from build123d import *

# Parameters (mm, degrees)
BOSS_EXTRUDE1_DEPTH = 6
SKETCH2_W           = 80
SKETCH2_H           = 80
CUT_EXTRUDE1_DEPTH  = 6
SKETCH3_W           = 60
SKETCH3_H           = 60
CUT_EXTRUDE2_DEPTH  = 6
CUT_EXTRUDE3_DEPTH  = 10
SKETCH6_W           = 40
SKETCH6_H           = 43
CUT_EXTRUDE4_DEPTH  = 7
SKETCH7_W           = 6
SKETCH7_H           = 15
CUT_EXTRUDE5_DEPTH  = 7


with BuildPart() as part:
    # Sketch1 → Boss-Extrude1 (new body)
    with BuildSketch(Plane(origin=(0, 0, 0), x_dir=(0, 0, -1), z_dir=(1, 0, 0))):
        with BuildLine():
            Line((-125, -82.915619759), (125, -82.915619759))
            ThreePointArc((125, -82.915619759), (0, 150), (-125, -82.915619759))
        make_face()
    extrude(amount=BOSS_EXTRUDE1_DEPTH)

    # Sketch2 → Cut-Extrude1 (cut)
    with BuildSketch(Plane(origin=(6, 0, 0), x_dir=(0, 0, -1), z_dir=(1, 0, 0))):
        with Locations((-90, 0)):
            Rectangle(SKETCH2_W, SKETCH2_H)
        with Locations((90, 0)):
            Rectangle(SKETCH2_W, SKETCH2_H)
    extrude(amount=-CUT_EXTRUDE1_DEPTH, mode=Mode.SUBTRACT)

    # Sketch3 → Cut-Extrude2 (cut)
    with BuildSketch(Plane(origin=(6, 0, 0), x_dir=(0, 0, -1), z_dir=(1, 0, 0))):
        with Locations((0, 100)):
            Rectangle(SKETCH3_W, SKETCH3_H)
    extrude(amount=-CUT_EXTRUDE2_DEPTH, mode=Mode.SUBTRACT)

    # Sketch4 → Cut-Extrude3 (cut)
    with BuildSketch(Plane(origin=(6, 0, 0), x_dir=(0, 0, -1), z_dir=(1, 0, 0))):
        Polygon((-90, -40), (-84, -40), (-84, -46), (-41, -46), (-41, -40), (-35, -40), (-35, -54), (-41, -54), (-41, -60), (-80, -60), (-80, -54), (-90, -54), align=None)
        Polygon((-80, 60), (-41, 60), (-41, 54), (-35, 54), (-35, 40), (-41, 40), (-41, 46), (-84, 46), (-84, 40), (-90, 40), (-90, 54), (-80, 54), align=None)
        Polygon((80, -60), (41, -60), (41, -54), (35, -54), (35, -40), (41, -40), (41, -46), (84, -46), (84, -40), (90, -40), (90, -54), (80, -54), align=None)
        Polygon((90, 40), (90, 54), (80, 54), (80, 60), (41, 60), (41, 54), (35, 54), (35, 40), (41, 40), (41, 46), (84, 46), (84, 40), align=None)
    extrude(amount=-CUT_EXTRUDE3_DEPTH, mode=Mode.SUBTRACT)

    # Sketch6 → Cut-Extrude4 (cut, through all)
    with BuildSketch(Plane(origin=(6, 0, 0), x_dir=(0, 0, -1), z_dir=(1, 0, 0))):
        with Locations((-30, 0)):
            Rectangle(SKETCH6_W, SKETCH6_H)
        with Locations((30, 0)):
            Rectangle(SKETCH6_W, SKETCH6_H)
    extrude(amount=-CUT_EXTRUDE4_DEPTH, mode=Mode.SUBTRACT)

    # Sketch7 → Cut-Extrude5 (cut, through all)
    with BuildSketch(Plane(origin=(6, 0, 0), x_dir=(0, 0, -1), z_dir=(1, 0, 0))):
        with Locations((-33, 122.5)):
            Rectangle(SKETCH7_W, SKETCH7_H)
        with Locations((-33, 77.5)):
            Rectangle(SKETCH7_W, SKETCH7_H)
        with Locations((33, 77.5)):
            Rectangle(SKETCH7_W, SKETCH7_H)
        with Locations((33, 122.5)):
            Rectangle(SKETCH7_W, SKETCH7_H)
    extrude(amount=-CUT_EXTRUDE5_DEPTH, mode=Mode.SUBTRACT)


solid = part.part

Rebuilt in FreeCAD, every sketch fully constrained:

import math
import FreeCAD as App
import Part
import Sketcher
Q = App.Units.Quantity


def add_polygon(sketch, points):
    """Adds a closed chain of lines whose ends are joined by coincident constraints."""
    first, n = sketch.GeometryCount, len(points)
    for a, b in zip(points, points[1:] + points[:1]):
        sketch.addGeometry(Part.LineSegment(App.Vector(*a, 0), App.Vector(*b, 0)), False)
    for i in range(n):
        sketch.addConstraint(Sketcher.Constraint("Coincident", first + i, 2, first + (i + 1) % n, 1))

doc = App.newDocument("Part")
params = doc.addObject("Spreadsheet::Sheet", "Params")
for row, (alias, value) in enumerate([
    ("sketch1_radius", "150 mm"),
    ("sketch1_height", "250 mm"),
    ("pad1_length", "6 mm"),
    ("sketch2_width", "80 mm"),
    ("pocket1_length", "6 mm"),
    ("sketch3_width", "60 mm"),
    ("pocket2_length", "6 mm"),
    ("sketch4_width", "14 mm"),
    ("sketch4_width2", "6 mm"),
    ("sketch4_height", "10 mm"),
    ("sketch4_height2", "39 mm"),
    ("pocket3_length", "10 mm"),
    ("sketch5_width", "43 mm"),
    ("sketch5_height", "40 mm"),
    ("sketch6_width", "15 mm"),
    ("sketch6_height", "6 mm"),
], start=1):
    params.set(f"A{row}", alias)
    params.set(f"B{row}", "=" + value)
    params.setAlias(f"B{row}", alias)

body = doc.addObject("PartDesign::Body", "Body")

sketch1 = body.newObject("Sketcher::SketchObject", "Sketch")
sketch1.AttachmentSupport = (doc.getObject("YZ_Plane"), [""])
sketch1.MapMode = "FlatFace"
sketch1.addGeometry([
    Part.LineSegment(App.Vector(-82.91562, 125, 0), App.Vector(-82.91562, -125, 0)),
    Part.ArcOfCircle(Part.Circle(App.Vector(0, 0, 0), App.Vector(0, 0, 1), 150), math.radians(-123.55731), math.radians(123.55731)),
], False)
sketch1.addConstraint([
    Sketcher.Constraint("Coincident", 0, 1, 1, 2),
    Sketcher.Constraint("Coincident", 1, 1, 0, 2),
    Sketcher.Constraint("Vertical", 0),
    Sketcher.Constraint("Coincident", 1, 3, -1, 1),
    Sketcher.Constraint("Radius", 1, Q("150 mm")),
    Sketcher.Constraint("DistanceY", 0, 2, 0, 1, Q("250 mm")),
])
sketch1.setExpression("Constraints[4]", "Params.sketch1_radius")
sketch1.setExpression("Constraints[5]", "Params.sketch1_height")
pad1 = body.newObject("PartDesign::Pad", "Pad")
pad1.Profile = sketch1
pad1.setExpression("Length", "Params.pad1_length")

sketch2 = body.newObject("Sketcher::SketchObject", "Sketch001")
sketch2.AttachmentSupport = (doc.getObject("YZ_Plane"), [""])
sketch2.MapMode = "FlatFace"
sketch2.AttachmentOffset = App.Placement(App.Vector(0, 0, 6), App.Rotation())
add_polygon(sketch2, [(40, 130), (-40, 130), (-40, 50), (40, 50)])
add_polygon(sketch2, [(40, -50), (-40, -50), (-40, -130), (40, -130)])
sketch2.addConstraint([
    Sketcher.Constraint("Horizontal", 0),
    Sketcher.Constraint("Vertical", 1),
    Sketcher.Constraint("Horizontal", 2),
    Sketcher.Constraint("Vertical", 3),
    Sketcher.Constraint("Horizontal", 4),
    Sketcher.Constraint("Vertical", 5),
    Sketcher.Constraint("Horizontal", 6),
    Sketcher.Constraint("Vertical", 7),
    Sketcher.Constraint("Symmetric", 2, 2, 4, 2, -1, 1),
    Sketcher.Constraint("Symmetric", 0, 2, 6, 2, -1, 1),
    Sketcher.Constraint("Vertical", 1, 2, 4, 2),
    Sketcher.Constraint("Equal", 6, 1),
    Sketcher.Constraint("DistanceX", 0, 2, 0, 1, Q("80 mm")),
    Sketcher.Constraint("DistanceY", -1, 1, 0, 2, Q("130 mm")),
])
sketch2.setExpression("Constraints[20]", "Params.sketch2_width")
pocket1 = body.newObject("PartDesign::Pocket", "Pocket")
pocket1.Profile = sketch2
pocket1.setExpression("Length", "Params.pocket1_length")

sketch3 = body.newObject("Sketcher::SketchObject", "Sketch002")
sketch3.AttachmentSupport = (doc.getObject("YZ_Plane"), [""])
sketch3.MapMode = "FlatFace"
sketch3.AttachmentOffset = App.Placement(App.Vector(0, 0, 6), App.Rotation())
add_polygon(sketch3, [(130, 30), (70, 30), (70, -30), (130, -30)])
sketch3.addConstraint([
    Sketcher.Constraint("Horizontal", 0),
    Sketcher.Constraint("Vertical", 1),
    Sketcher.Constraint("Horizontal", 2),
    Sketcher.Constraint("Vertical", 3),
    Sketcher.Constraint("Equal", 2, 1),
    Sketcher.Constraint("DistanceX", 0, 2, 0, 1, Q("60 mm")),
    Sketcher.Constraint("DistanceX", -1, 1, 0, 2, Q("70 mm")),
    Sketcher.Constraint("DistanceY", -1, 1, 0, 2, Q("30 mm")),
])
sketch3.setExpression("Constraints[9]", "Params.sketch3_width")
pocket2 = body.newObject("PartDesign::Pocket", "Pocket001")
pocket2.Profile = sketch3
pocket2.setExpression("Length", "Params.pocket2_length")

sketch4 = body.newObject("Sketcher::SketchObject", "Sketch003")
sketch4.AttachmentSupport = (doc.getObject("YZ_Plane"), [""])
sketch4.MapMode = "FlatFace"
sketch4.AttachmentOffset = App.Placement(App.Vector(0, 0, 6), App.Rotation())
add_polygon(sketch4, [(-40, 84), (-40, 90), (-54, 90), (-54, 80), (-60, 80), (-60, 41), (-54, 41), (-54, 35), (-40, 35), (-40, 41), (-46, 41), (-46, 84)])
add_polygon(sketch4, [(60, 41), (60, 80), (54, 80), (54, 90), (40, 90), (40, 84), (46, 84), (46, 41), (40, 41), (40, 35), (54, 35), (54, 41)])
add_polygon(sketch4, [(-60, -41), (-60, -80), (-54, -80), (-54, -90), (-40, -90), (-40, -84), (-46, -84), (-46, -41), (-40, -41), (-40, -35), (-54, -35), (-54, -41)])
add_polygon(sketch4, [(40, -90), (54, -90), (54, -80), (60, -80), (60, -41), (54, -41), (54, -35), (40, -35), (40, -41), (46, -41), (46, -84), (40, -84)])
sketch4.addConstraint([
    Sketcher.Constraint("Vertical", 0),
    Sketcher.Constraint("Horizontal", 1),
    Sketcher.Constraint("Vertical", 2),
    Sketcher.Constraint("Horizontal", 3),
    Sketcher.Constraint("Vertical", 4),
    Sketcher.Constraint("Horizontal", 5),
    Sketcher.Constraint("Vertical", 6),
    Sketcher.Constraint("Horizontal", 7),
    Sketcher.Constraint("Vertical", 8),
    Sketcher.Constraint("Horizontal", 9),
    Sketcher.Constraint("Vertical", 10),
    Sketcher.Constraint("Horizontal", 11),
    Sketcher.Constraint("Vertical", 12),
    Sketcher.Constraint("Horizontal", 13),
    Sketcher.Constraint("Vertical", 14),
    Sketcher.Constraint("Horizontal", 15),
    Sketcher.Constraint("Vertical", 16),
    Sketcher.Constraint("Horizontal", 17),
    Sketcher.Constraint("Vertical", 18),
    Sketcher.Constraint("Horizontal", 19),
    Sketcher.Constraint("Vertical", 20),
    Sketcher.Constraint("Horizontal", 21),
    Sketcher.Constraint("Vertical", 22),
    Sketcher.Constraint("Horizontal", 23),
    Sketcher.Constraint("Vertical", 24),
    Sketcher.Constraint("Horizontal", 25),
    Sketcher.Constraint("Vertical", 26),
    Sketcher.Constraint("Horizontal", 27),
    Sketcher.Constraint("Vertical", 28),
    Sketcher.Constraint("Horizontal", 29),
    Sketcher.Constraint("Vertical", 30),
    Sketcher.Constraint("Horizontal", 31),
    Sketcher.Constraint("Vertical", 32),
    Sketcher.Constraint("Horizontal", 33),
    Sketcher.Constraint("Vertical", 34),
    Sketcher.Constraint("Horizontal", 35),
    Sketcher.Constraint("Horizontal", 36),
    Sketcher.Constraint("Vertical", 37),
    Sketcher.Constraint("Horizontal", 38),
    Sketcher.Constraint("Vertical", 39),
    Sketcher.Constraint("Horizontal", 40),
    Sketcher.Constraint("Vertical", 41),
    Sketcher.Constraint("Horizontal", 42),
    Sketcher.Constraint("Vertical", 43),
    Sketcher.Constraint("Horizontal", 44),
    Sketcher.Constraint("Vertical", 45),
    Sketcher.Constraint("Horizontal", 46),
    Sketcher.Constraint("Vertical", 47),
    Sketcher.Constraint("Symmetric", 12, 2, 24, 2, -1, 1),
    Sketcher.Constraint("Symmetric", 14, 2, 26, 2, -1, 1),
    Sketcher.Constraint("Symmetric", 16, 2, 28, 2, -1, 1),
    Sketcher.Constraint("Symmetric", 18, 2, 30, 2, -1, 1),
    Sketcher.Constraint("Symmetric", 20, 2, 32, 2, -1, 1),
    Sketcher.Constraint("Symmetric", 22, 2, 34, 2, -1, 1),
    Sketcher.Constraint("Symmetric", 1, 2, 36, 2, -1, 1),
    Sketcher.Constraint("Symmetric", 3, 2, 38, 2, -1, 1),
    Sketcher.Constraint("Symmetric", 5, 2, 40, 2, -1, 1),
    Sketcher.Constraint("Symmetric", 7, 2, 42, 2, -1, 1),
    Sketcher.Constraint("Symmetric", 9, 2, 44, 2, -1, 1),
    Sketcher.Constraint("Symmetric", 11, 2, 46, 2, -1, 1),
    Sketcher.Constraint("Symmetric", 3, 2, 12, 2, -2),
    Sketcher.Constraint("Symmetric", 1, 2, 14, 2, -2),
    Sketcher.Constraint("Symmetric", 11, 2, 16, 2, -2),
    Sketcher.Constraint("Symmetric", 9, 2, 18, 2, -2),
    Sketcher.Constraint("Symmetric", 7, 2, 20, 2, -2),
    Sketcher.Constraint("Symmetric", 5, 2, 22, 2, -2),
    Sketcher.Constraint("Horizontal", 5, 2, 8, 2),
    Sketcher.Constraint("Vertical", 2, 2, 5, 2),
    Sketcher.Constraint("Vertical", 0, 2, 7, 2),
    Sketcher.Constraint("Equal", 5, 9),
    Sketcher.Constraint("Equal", 46, 0),
    Sketcher.Constraint("Equal", 0, 6),
    Sketcher.Constraint("DistanceX", 1, 2, 1, 1, Q("14 mm")),
    Sketcher.Constraint("DistanceX", 3, 2, 3, 1, Q("6 mm")),
    Sketcher.Constraint("DistanceY", 2, 2, 2, 1, Q("10 mm")),
    Sketcher.Constraint("DistanceY", 4, 2, 4, 1, Q("39 mm")),
    Sketcher.Constraint("DistanceX", 0, 2, -1, 1, Q("40 mm")),
    Sketcher.Constraint("DistanceY", -1, 1, 0, 2, Q("90 mm")),
])
sketch4.setExpression("Constraints[120]", "Params.sketch4_width")
sketch4.setExpression("Constraints[121]", "Params.sketch4_width2")
sketch4.setExpression("Constraints[122]", "Params.sketch4_height")
sketch4.setExpression("Constraints[123]", "Params.sketch4_height2")
pocket3 = body.newObject("PartDesign::Pocket", "Pocket002")
pocket3.Profile = sketch4
pocket3.setExpression("Length", "Params.pocket3_length")

sketch5 = body.newObject("Sketcher::SketchObject", "Sketch004")
sketch5.AttachmentSupport = (doc.getObject("YZ_Plane"), [""])
sketch5.MapMode = "FlatFace"
sketch5.AttachmentOffset = App.Placement(App.Vector(0, 0, 6), App.Rotation())
add_polygon(sketch5, [(21.5, 50), (-21.5, 50), (-21.5, 10), (21.5, 10)])
add_polygon(sketch5, [(21.5, -10), (-21.5, -10), (-21.5, -50), (21.5, -50)])
sketch5.addConstraint([
    Sketcher.Constraint("Horizontal", 0),
    Sketcher.Constraint("Vertical", 1),
    Sketcher.Constraint("Horizontal", 2),
    Sketcher.Constraint("Vertical", 3),
    Sketcher.Constraint("Horizontal", 4),
    Sketcher.Constraint("Vertical", 5),
    Sketcher.Constraint("Horizontal", 6),
    Sketcher.Constraint("Vertical", 7),
    Sketcher.Constraint("Symmetric", 2, 2, 4, 2, -1, 1),
    Sketcher.Constraint("Symmetric", 0, 2, 6, 2, -1, 1),
    Sketcher.Constraint("Vertical", 1, 2, 4, 2),
    Sketcher.Constraint("DistanceX", 0, 2, 0, 1, Q("43 mm")),
    Sketcher.Constraint("DistanceY", 1, 2, 1, 1, Q("40 mm")),
    Sketcher.Constraint("DistanceY", -1, 1, 0, 2, Q("50 mm")),
])
sketch5.setExpression("Constraints[19]", "Params.sketch5_width")
sketch5.setExpression("Constraints[20]", "Params.sketch5_height")
pocket4 = body.newObject("PartDesign::Pocket", "Pocket003")
pocket4.Profile = sketch5
pocket4.Type = "ThroughAll"

sketch6 = body.newObject("Sketcher::SketchObject", "Sketch005")
sketch6.AttachmentSupport = (doc.getObject("YZ_Plane"), [""])
sketch6.MapMode = "FlatFace"
sketch6.AttachmentOffset = App.Placement(App.Vector(0, 0, 6), App.Rotation())
add_polygon(sketch6, [(130, 36), (115, 36), (115, 30), (130, 30)])
add_polygon(sketch6, [(85, 36), (70, 36), (70, 30), (85, 30)])
add_polygon(sketch6, [(85, -30), (70, -30), (70, -36), (85, -36)])
add_polygon(sketch6, [(130, -30), (115, -30), (115, -36), (130, -36)])
sketch6.addConstraint([
    Sketcher.Constraint("Horizontal", 0),
    Sketcher.Constraint("Vertical", 1),
    Sketcher.Constraint("Horizontal", 2),
    Sketcher.Constraint("Vertical", 3),
    Sketcher.Constraint("Horizontal", 4),
    Sketcher.Constraint("Vertical", 5),
    Sketcher.Constraint("Horizontal", 6),
    Sketcher.Constraint("Vertical", 7),
    Sketcher.Constraint("Horizontal", 8),
    Sketcher.Constraint("Vertical", 9),
    Sketcher.Constraint("Horizontal", 10),
    Sketcher.Constraint("Vertical", 11),
    Sketcher.Constraint("Horizontal", 12),
    Sketcher.Constraint("Vertical", 13),
    Sketcher.Constraint("Horizontal", 14),
    Sketcher.Constraint("Vertical", 15),
    Sketcher.Constraint("Symmetric", 5, 2, 8, 2, -1),
    Sketcher.Constraint("Symmetric", 7, 2, 10, 2, -1),
    Sketcher.Constraint("Symmetric", 1, 2, 12, 2, -1),
    Sketcher.Constraint("Symmetric", 3, 2, 14, 2, -1),
    Sketcher.Constraint("Horizontal", 3, 2, 4, 2),
    Sketcher.Constraint("Horizontal", 2, 2, 5, 2),
    Sketcher.Constraint("Equal", 2, 4),
    Sketcher.Constraint("DistanceX", 0, 2, 0, 1, Q("15 mm")),
    Sketcher.Constraint("DistanceY", 1, 2, 1, 1, Q("6 mm")),
    Sketcher.Constraint("DistanceX", -1, 1, 0, 2, Q("115 mm")),
    Sketcher.Constraint("DistanceY", -1, 1, 0, 2, Q("36 mm")),
    Sketcher.Constraint("DistanceX", -1, 1, 4, 2, Q("70 mm")),
])
sketch6.setExpression("Constraints[39]", "Params.sketch6_width")
sketch6.setExpression("Constraints[40]", "Params.sketch6_height")
pocket5 = body.newObject("PartDesign::Pocket", "Pocket004")
pocket5.Profile = sketch6
pocket5.Type = "ThroughAll"

doc.recompute()
